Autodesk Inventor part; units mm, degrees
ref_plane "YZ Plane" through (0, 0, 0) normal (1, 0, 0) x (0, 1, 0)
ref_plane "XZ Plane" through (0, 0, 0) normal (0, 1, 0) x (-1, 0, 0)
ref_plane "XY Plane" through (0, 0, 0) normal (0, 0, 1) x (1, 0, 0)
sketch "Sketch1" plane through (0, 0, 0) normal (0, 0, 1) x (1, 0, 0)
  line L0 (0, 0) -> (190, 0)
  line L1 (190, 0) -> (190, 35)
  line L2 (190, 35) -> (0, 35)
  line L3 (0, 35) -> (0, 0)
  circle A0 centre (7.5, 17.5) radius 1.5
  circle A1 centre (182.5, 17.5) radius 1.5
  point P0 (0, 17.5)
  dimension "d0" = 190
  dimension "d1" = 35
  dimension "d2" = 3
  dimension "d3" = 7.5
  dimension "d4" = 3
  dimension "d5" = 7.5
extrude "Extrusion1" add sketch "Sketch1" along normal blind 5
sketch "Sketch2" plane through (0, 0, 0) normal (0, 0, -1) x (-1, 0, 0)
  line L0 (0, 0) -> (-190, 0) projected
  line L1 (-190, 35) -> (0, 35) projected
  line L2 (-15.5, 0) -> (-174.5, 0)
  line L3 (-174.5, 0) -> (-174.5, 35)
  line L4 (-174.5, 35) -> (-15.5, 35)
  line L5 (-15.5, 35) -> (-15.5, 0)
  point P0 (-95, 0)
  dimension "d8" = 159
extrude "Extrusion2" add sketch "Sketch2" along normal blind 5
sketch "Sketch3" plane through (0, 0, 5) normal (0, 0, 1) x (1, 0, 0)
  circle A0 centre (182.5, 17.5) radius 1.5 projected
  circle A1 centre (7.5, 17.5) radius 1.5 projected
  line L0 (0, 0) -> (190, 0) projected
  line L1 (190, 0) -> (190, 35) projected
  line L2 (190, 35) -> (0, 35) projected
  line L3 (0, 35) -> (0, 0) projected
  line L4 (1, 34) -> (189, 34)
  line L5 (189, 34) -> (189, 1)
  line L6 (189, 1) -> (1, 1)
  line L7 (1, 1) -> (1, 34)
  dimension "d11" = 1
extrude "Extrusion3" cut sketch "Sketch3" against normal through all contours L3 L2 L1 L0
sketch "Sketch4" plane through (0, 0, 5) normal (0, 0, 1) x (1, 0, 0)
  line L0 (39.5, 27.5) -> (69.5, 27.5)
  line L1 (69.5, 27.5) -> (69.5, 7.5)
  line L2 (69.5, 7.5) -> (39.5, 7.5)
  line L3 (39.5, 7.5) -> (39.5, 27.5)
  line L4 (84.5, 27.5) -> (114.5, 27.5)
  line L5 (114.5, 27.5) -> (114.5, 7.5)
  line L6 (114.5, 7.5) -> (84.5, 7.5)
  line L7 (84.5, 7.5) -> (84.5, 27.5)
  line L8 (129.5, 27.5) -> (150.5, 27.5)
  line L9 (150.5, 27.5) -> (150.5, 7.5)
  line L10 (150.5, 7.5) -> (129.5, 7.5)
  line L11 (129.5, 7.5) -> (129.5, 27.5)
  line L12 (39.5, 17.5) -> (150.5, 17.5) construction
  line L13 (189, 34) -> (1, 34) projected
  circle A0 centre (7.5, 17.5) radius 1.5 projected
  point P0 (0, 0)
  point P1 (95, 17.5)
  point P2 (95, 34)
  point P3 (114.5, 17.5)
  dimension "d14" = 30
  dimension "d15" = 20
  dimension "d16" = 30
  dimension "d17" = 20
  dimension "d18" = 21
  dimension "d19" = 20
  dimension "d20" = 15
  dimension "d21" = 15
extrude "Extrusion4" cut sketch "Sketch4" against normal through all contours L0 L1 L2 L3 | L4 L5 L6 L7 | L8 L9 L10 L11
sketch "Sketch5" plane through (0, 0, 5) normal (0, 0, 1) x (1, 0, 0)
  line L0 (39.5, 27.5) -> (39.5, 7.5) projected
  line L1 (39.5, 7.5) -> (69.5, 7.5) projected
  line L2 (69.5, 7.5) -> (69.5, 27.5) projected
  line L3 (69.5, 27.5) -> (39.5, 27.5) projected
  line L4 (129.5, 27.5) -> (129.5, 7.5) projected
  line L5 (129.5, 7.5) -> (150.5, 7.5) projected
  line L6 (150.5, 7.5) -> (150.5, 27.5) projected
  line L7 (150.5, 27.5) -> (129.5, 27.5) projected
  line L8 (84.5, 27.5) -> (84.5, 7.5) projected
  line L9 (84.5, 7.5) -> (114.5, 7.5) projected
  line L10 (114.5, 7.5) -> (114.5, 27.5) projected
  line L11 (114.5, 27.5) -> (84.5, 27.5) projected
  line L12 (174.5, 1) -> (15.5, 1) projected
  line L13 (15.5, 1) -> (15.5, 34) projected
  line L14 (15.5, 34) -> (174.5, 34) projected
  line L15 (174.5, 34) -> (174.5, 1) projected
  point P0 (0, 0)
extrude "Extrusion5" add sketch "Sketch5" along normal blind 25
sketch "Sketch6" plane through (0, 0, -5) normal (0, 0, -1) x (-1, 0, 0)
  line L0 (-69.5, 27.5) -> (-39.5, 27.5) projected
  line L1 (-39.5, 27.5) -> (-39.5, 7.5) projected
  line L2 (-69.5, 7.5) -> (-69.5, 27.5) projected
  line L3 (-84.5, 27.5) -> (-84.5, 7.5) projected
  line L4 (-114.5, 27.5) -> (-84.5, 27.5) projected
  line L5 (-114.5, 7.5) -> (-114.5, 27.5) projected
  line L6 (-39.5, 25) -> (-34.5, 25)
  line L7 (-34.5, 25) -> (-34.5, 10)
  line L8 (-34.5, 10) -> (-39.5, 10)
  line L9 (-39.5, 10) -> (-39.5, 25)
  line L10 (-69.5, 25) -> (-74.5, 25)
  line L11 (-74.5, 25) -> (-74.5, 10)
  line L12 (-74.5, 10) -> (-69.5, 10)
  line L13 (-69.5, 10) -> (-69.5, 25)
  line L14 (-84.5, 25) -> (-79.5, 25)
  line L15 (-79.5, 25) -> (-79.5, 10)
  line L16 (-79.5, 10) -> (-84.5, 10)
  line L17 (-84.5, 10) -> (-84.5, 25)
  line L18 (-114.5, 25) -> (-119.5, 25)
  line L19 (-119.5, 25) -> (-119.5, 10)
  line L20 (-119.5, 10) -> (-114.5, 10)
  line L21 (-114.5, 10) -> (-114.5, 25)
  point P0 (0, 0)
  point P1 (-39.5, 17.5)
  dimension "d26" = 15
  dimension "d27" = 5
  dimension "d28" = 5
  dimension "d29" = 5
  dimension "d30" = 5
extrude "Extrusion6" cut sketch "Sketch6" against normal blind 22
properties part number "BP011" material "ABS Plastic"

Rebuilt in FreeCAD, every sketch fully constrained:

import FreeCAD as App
import Part
import Sketcher


def add_polygon(sketch, points):
    """Adds a closed chain of lines whose ends are joined by coincident constraints."""
    first, n = sketch.GeometryCount, len(points)
    for a, b in zip(points, points[1:] + points[:1]):
        sketch.addGeometry(Part.LineSegment(App.Vector(*a, 0), App.Vector(*b, 0)), False)
    for i in range(n):
        sketch.addConstraint(Sketcher.Constraint("Coincident", first + i, 2, first + (i + 1) % n, 1))

doc = App.newDocument("Part")
body = doc.addObject("PartDesign::Body", "Body")

# Sketch on XY plane
sketch1 = doc.addObject("Sketcher::SketchObject", "Sketch")
body.addObject(sketch1)
sketch1.AttachmentSupport = (doc.XY_Plane, [""])
sketch1.MapMode = "FlatFace"
add_polygon(sketch1, [(0, 35), (0, 0), (190, 0), (190, 35)])  # lines 0-3
sketch1.addGeometry(Part.Circle(App.Vector(7.5, 17.5, 0), App.Vector(0, 0, 1), 1.5), False)  # 4
sketch1.addGeometry(Part.Circle(App.Vector(182.5, 17.5, 0), App.Vector(0, 0, 1), 1.5), False)  # 5
sketch1.addConstraint(Sketcher.Constraint("Vertical", 0))
sketch1.addConstraint(Sketcher.Constraint("Horizontal", 1))
sketch1.addConstraint(Sketcher.Constraint("Vertical", 2))
sketch1.addConstraint(Sketcher.Constraint("Horizontal", 3))
sketch1.addConstraint(Sketcher.Constraint("Coincident", 0, 2, -1, 1))
sketch1.addConstraint(Sketcher.Constraint("Equal", 4, 5))
sketch1.addConstraint(Sketcher.Constraint("Horizontal", 4, 3, 5, 3))
sketch1.addConstraint(Sketcher.Constraint("Diameter", 4, 3.0))
sketch1.addConstraint(Sketcher.Constraint("DistanceX", 1, 1, 1, 2, 190.0))
sketch1.addConstraint(Sketcher.Constraint("DistanceY", 0, 2, 0, 1, 35.0))
sketch1.addConstraint(Sketcher.Constraint("DistanceX", -1, 1, 4, 3, 7.5))
sketch1.addConstraint(Sketcher.Constraint("DistanceX", 5, 3, 1, 2, 7.5))
sketch1.addConstraint(Sketcher.Constraint("DistanceY", -1, 1, 4, 3, 17.5))
pad1 = doc.addObject("PartDesign::Pad", "Pad")
body.addObject(pad1)
pad1.Profile = sketch1
pad1.Length = 5

# Sketch on XY plane
sketch2 = doc.addObject("Sketcher::SketchObject", "Sketch001")
body.addObject(sketch2)
sketch2.AttachmentSupport = (doc.XY_Plane, [""])
sketch2.MapMode = "FlatFace"
add_polygon(sketch2, [(174, 0), (16, 0), (16, 35), (174, 35)])  # lines 0-3
sketch2.addConstraint(Sketcher.Constraint("Horizontal", 0))
sketch2.addConstraint(Sketcher.Constraint("Vertical", 1))
sketch2.addConstraint(Sketcher.Constraint("Horizontal", 2))
sketch2.addConstraint(Sketcher.Constraint("Vertical", 3))
sketch2.addConstraint(Sketcher.Constraint("PointOnObject", 0, 2, -1))
sketch2.addConstraint(Sketcher.Constraint("DistanceX", 0, 2, 0, 1, 159.0))
sketch2.addConstraint(Sketcher.Constraint("DistanceY", 1, 1, 1, 2, 35.0))
sketch2.addConstraint(Sketcher.Constraint("DistanceX", -1, 1, 0, 2, 15.5))
pad2 = doc.addObject("PartDesign::Pad", "Pad001")
body.addObject(pad2)
pad2.Profile = sketch2
pad2.Length = 5
pad2.Reversed = True

# Sketch on XY plane
sketch3 = doc.addObject("Sketcher::SketchObject", "Sketch002")
body.addObject(sketch3)
sketch3.AttachmentSupport = (doc.XY_Plane, [""])
sketch3.MapMode = "FlatFace"
sketch3.AttachmentOffset = App.Placement(App.Vector(0, 0, 5), App.Rotation())
add_polygon(sketch3, [(0, 35), (0, 0), (190, 0), (190, 35)])  # lines 0-3
add_polygon(sketch3, [(1, 1), (1, 34), (189, 34), (189, 1)])  # lines 4-7
sketch3.addConstraint(Sketcher.Constraint("Vertical", 0))
sketch3.addConstraint(Sketcher.Constraint("Horizontal", 1))
sketch3.addConstraint(Sketcher.Constraint("Vertical", 2))
sketch3.addConstraint(Sketcher.Constraint("Horizontal", 3))
sketch3.addConstraint(Sketcher.Constraint("Vertical", 4))
sketch3.addConstraint(Sketcher.Constraint("Horizontal", 5))
sketch3.addConstraint(Sketcher.Constraint("Vertical", 6))
sketch3.addConstraint(Sketcher.Constraint("Horizontal", 7))
sketch3.addConstraint(Sketcher.Constraint("Coincident", 0, 2, -1, 1))
sketch3.addConstraint(Sketcher.Constraint("DistanceX", -1, 1, 4, 2, 1.0))
sketch3.addConstraint(Sketcher.Constraint("DistanceY", -1, 1, 6, 2, 1.0))
sketch3.addConstraint(Sketcher.Constraint("DistanceY", 4, 2, 3, 2, 1.0))
sketch3.addConstraint(Sketcher.Constraint("DistanceX", 5, 2, 2, 2, 1.0))
sketch3.addConstraint(Sketcher.Constraint("DistanceX", 1, 1, 1, 2, 190.0))
sketch3.addConstraint(Sketcher.Constraint("DistanceY", 0, 2, 0, 1, 35.0))
pocket1 = doc.addObject("PartDesign::Pocket", "Pocket")
body.addObject(pocket1)
pocket1.Profile = sketch3
pocket1.Type = "ThroughAll"

# Sketch on XY plane
sketch4 = doc.addObject("Sketcher::SketchObject", "Sketch003")
body.addObject(sketch4)
sketch4.AttachmentSupport = (doc.XY_Plane, [""])
sketch4.MapMode = "FlatFace"
sketch4.AttachmentOffset = App.Placement(App.Vector(0, 0, 5), App.Rotation())
add_polygon(sketch4, [(70, 28), (40, 28), (40, 8), (70, 8)])  # lines 0-3
add_polygon(sketch4, [(114, 28), (84, 28), (84, 8), (114, 8)])  # lines 4-7
add_polygon(sketch4, [(150, 28), (130, 28), (130, 8), (150, 8)])  # lines 8-11
sketch4.addConstraint(Sketcher.Constraint("Horizontal", 0))
sketch4.addConstraint(Sketcher.Constraint("Vertical", 1))
sketch4.addConstraint(Sketcher.Constraint("Horizontal", 2))
sketch4.addConstraint(Sketcher.Constraint("Vertical", 3))
sketch4.addConstraint(Sketcher.Constraint("Horizontal", 4))
sketch4.addConstraint(Sketcher.Constraint("Vertical", 5))
sketch4.addConstraint(Sketcher.Constraint("Horizontal", 6))
sketch4.addConstraint(Sketcher.Constraint("Vertical", 7))
sketch4.addConstraint(Sketcher.Constraint("Horizontal", 8))
sketch4.addConstraint(Sketcher.Constraint("Vertical", 9))
sketch4.addConstraint(Sketcher.Constraint("Horizontal", 10))
sketch4.addConstraint(Sketcher.Constraint("Vertical", 11))
sketch4.addConstraint(Sketcher.Constraint("Horizontal", 3, 2, 4, 2))
sketch4.addConstraint(Sketcher.Constraint("Horizontal", 2, 2, 5, 2))
sketch4.addConstraint(Sketcher.Constraint("Horizontal", 7, 2, 8, 2))
sketch4.addConstraint(Sketcher.Constraint("Horizontal", 6, 2, 9, 2))
sketch4.addConstraint(Sketcher.Constraint("Equal", 2, 4))
sketch4.addConstraint(Sketcher.Constraint("DistanceX", 0, 2, 0, 1, 30.0))
sketch4.addConstraint(Sketcher.Constraint("DistanceX", 8, 2, 8, 1, 21.0))
sketch4.addConstraint(Sketcher.Constraint("DistanceY", 1, 2, 1, 1, 20.0))
sketch4.addConstraint(Sketcher.Constraint("DistanceX", 3, 2, 4, 2, 15.0))
sketch4.addConstraint(Sketcher.Constraint("DistanceX", 7, 2, 8, 2, 15.0))
sketch4.addConstraint(Sketcher.Constraint("DistanceX", -1, 1, 0, 2, 39.5))
sketch4.addConstraint(Sketcher.Constraint("DistanceY", -1, 1, 0, 2, 27.5))
pocket2 = doc.addObject("PartDesign::Pocket", "Pocket001")
body.addObject(pocket2)
pocket2.Profile = sketch4
pocket2.Type = "ThroughAll"

# Sketch on XY plane
sketch5 = doc.addObject("Sketcher::SketchObject", "Sketch004")
body.addObject(sketch5)
sketch5.AttachmentSupport = (doc.XY_Plane, [""])
sketch5.MapMode = "FlatFace"
sketch5.AttachmentOffset = App.Placement(App.Vector(0, 0, 5), App.Rotation())
add_polygon(sketch5, [(16, 1), (174, 1), (174, 34), (16, 34)])  # lines 0-3
add_polygon(sketch5, [(40, 8), (40, 28), (70, 28), (70, 8)])  # lines 4-7
add_polygon(sketch5, [(84, 8), (84, 28), (114, 28), (114, 8)])  # lines 8-11
add_polygon(sketch5, [(130, 8), (130, 28), (150, 28), (150, 8)])  # lines 12-15
sketch5.addConstraint(Sketcher.Constraint("Horizontal", 0))
sketch5.addConstraint(Sketcher.Constraint("Vertical", 1))
sketch5.addConstraint(Sketcher.Constraint("Horizontal", 2))
sketch5.addConstraint(Sketcher.Constraint("Vertical", 3))
sketch5.addConstraint(Sketcher.Constraint("Vertical", 4))
sketch5.addConstraint(Sketcher.Constraint("Horizontal", 5))
sketch5.addConstraint(Sketcher.Constraint("Vertical", 6))
sketch5.addConstraint(Sketcher.Constraint("Horizontal", 7))
sketch5.addConstraint(Sketcher.Constraint("Vertical", 8))
sketch5.addConstraint(Sketcher.Constraint("Horizontal", 9))
sketch5.addConstraint(Sketcher.Constraint("Vertical", 10))
sketch5.addConstraint(Sketcher.Constraint("Horizontal", 11))
sketch5.addConstraint(Sketcher.Constraint("Vertical", 12))
sketch5.addConstraint(Sketcher.Constraint("Horizontal", 13))
sketch5.addConstraint(Sketcher.Constraint("Vertical", 14))
sketch5.addConstraint(Sketcher.Constraint("Horizontal", 15))
sketch5.addConstraint(Sketcher.Constraint("Horizontal", 5, 2, 8, 2))
sketch5.addConstraint(Sketcher.Constraint("Horizontal", 7, 2, 10, 2))
sketch5.addConstraint(Sketcher.Constraint("Horizontal", 9, 2, 12, 2))
sketch5.addConstraint(Sketcher.Constraint("Horizontal", 11, 2, 14, 2))
sketch5.addConstraint(Sketcher.Constraint("Equal", 7, 9))
sketch5.addConstraint(Sketcher.Constraint("DistanceX", 0, 1, 0, 2, 159.0))
sketch5.addConstraint(Sketcher.Constraint("DistanceX", 5, 1, 5, 2, 30.0))
sketch5.addConstraint(Sketcher.Constraint("DistanceX", 13, 1, 13, 2, 21.0))
sketch5.addConstraint(Sketcher.Constraint("DistanceY", 1, 1, 1, 2, 33.0))
sketch5.addConstraint(Sketcher.Constraint("DistanceY", 4, 1, 4, 2, 20.0))
sketch5.addConstraint(Sketcher.Constraint("DistanceY", -1, 1, 0, 2, 1.0))
sketch5.addConstraint(Sketcher.Constraint("DistanceX", 2, 2, 4, 2, 24.0))
sketch5.addConstraint(Sketcher.Constraint("DistanceX", 5, 2, 8, 2, 15.0))
sketch5.addConstraint(Sketcher.Constraint("DistanceX", 9, 2, 12, 2, 15.0))
sketch5.addConstraint(Sketcher.Constraint("DistanceX", -1, 1, 0, 2, 174.5))
sketch5.addConstraint(Sketcher.Constraint("DistanceY", -1, 1, 4, 2, 27.5))
pad3 = doc.addObject("PartDesign::Pad", "Pad002")
body.addObject(pad3)
pad3.Profile = sketch5
pad3.Length = 25

# Sketch on XY plane
sketch6 = doc.addObject("Sketcher::SketchObject", "Sketch005")
body.addObject(sketch6)
sketch6.AttachmentSupport = (doc.XY_Plane, [""])
sketch6.MapMode = "FlatFace"
sketch6.AttachmentOffset = App.Placement(App.Vector(0, 0, -5), App.Rotation())
add_polygon(sketch6, [(34, 25), (40, 25), (40, 10), (34, 10)])  # lines 0-3
add_polygon(sketch6, [(70, 10), (70, 25), (74, 25), (74, 10)])  # lines 4-7
add_polygon(sketch6, [(80, 25), (84, 25), (84, 10), (80, 10)])  # lines 8-11
add_polygon(sketch6, [(114, 10), (114, 25), (120, 25), (120, 10)])  # lines 12-15
sketch6.addConstraint(Sketcher.Constraint("Horizontal", 0))
sketch6.addConstraint(Sketcher.Constraint("Vertical", 1))
sketch6.addConstraint(Sketcher.Constraint("Horizontal", 2))
sketch6.addConstraint(Sketcher.Constraint("Vertical", 3))
sketch6.addConstraint(Sketcher.Constraint("Vertical", 4))
sketch6.addConstraint(Sketcher.Constraint("Horizontal", 5))
sketch6.addConstraint(Sketcher.Constraint("Vertical", 6))
sketch6.addConstraint(Sketcher.Constraint("Horizontal", 7))
sketch6.addConstraint(Sketcher.Constraint("Horizontal", 8))
sketch6.addConstraint(Sketcher.Constraint("Vertical", 9))
sketch6.addConstraint(Sketcher.Constraint("Horizontal", 10))
sketch6.addConstraint(Sketcher.Constraint("Vertical", 11))
sketch6.addConstraint(Sketcher.Constraint("Vertical", 12))
sketch6.addConstraint(Sketcher.Constraint("Horizontal", 13))
sketch6.addConstraint(Sketcher.Constraint("Vertical", 14))
sketch6.addConstraint(Sketcher.Constraint("Horizontal", 15))
sketch6.addConstraint(Sketcher.Constraint("Horizontal", 3, 2, 4, 2))
sketch6.addConstraint(Sketcher.Constraint("Horizontal", 2, 2, 6, 2))
sketch6.addConstraint(Sketcher.Constraint("Horizontal", 5, 2, 8, 2))
sketch6.addConstraint(Sketcher.Constraint("Horizontal", 7, 2, 9, 2))
sketch6.addConstraint(Sketcher.Constraint("Horizontal", 11, 2, 12, 2))
sketch6.addConstraint(Sketcher.Constraint("Horizontal", 10, 2, 14, 2))
sketch6.addConstraint(Sketcher.Constraint("Equal", 2, 5))
sketch6.addConstraint(Sketcher.Constraint("Equal", 7, 8))
sketch6.addConstraint(Sketcher.Constraint("Equal", 10, 13))
sketch6.addConstraint(Sketcher.Constraint("DistanceX", 0, 1, 0, 2, 5.0))
sketch6.addConstraint(Sketcher.Constraint("DistanceY", 1, 2, 1, 1, 15.0))
sketch6.addConstraint(Sketcher.Constraint("DistanceX", 4, 2, 8, 2, 15.0))
sketch6.addConstraint(Sketcher.Constraint("DistanceY", -1, 1, 0, 2, 25.0))
sketch6.addConstraint(Sketcher.Constraint("DistanceX", 0, 2, 4, 2, 30.0))
sketch6.addConstraint(Sketcher.Constraint("DistanceX", 8, 2, 12, 2, 30.0))
sketch6.addConstraint(Sketcher.Constraint("DistanceX", -1, 1, 0, 2, 39.5))
pocket3 = doc.addObject("PartDesign::Pocket", "Pocket002")
body.addObject(pocket3)
pocket3.Profile = sketch6
pocket3.Length = 22
pocket3.Reversed = True

doc.recompute()
